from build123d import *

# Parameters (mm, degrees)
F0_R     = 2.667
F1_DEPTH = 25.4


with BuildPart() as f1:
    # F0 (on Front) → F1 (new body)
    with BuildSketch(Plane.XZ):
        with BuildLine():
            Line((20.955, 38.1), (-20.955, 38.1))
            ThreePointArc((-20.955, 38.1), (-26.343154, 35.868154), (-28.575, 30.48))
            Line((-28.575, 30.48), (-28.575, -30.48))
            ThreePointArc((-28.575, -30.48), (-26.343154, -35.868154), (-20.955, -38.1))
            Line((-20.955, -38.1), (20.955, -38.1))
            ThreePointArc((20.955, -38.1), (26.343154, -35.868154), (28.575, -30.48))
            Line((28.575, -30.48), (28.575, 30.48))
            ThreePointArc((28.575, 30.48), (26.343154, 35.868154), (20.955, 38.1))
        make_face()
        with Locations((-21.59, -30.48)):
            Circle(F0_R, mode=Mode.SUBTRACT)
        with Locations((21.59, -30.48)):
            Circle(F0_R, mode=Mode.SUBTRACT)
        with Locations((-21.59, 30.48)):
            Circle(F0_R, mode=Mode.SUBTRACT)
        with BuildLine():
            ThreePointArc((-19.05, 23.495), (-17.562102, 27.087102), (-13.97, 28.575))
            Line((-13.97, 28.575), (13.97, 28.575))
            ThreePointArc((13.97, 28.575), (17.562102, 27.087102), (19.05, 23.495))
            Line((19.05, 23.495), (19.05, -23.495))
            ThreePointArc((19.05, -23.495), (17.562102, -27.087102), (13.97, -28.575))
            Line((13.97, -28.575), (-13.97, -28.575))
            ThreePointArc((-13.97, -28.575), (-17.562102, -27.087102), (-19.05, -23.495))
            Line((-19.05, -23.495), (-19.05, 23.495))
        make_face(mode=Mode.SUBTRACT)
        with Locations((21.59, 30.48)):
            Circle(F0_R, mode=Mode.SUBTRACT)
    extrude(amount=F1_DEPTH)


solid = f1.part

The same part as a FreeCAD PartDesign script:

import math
import FreeCAD as App
import Part
import Sketcher
Q = App.Units.Quantity

doc = App.newDocument("Part")
body = doc.addObject("PartDesign::Body", "Body")

# Sketch on XZ plane
sketch1 = body.newObject("Sketcher::SketchObject", "Sketch")
sketch1.AttachmentSupport = (doc.getObject("XZ_Plane"), [""])
sketch1.MapMode = "FlatFace"
sketch1.addGeometry([
    Part.LineSegment(App.Vector(21, 38.1, 0), App.Vector(-21, 38.1, 0)),  # 0
    Part.ArcOfCircle(Part.Circle(App.Vector(-21, 30.5, 0), App.Vector(0, 0, 1), 7.6), math.radians(90), math.radians(180)),  # 1
    Part.LineSegment(App.Vector(-28.6, 30.5, 0), App.Vector(-28.6, -30.5, 0)),  # 2
    Part.ArcOfCircle(Part.Circle(App.Vector(-21, -30.5, 0), App.Vector(0, 0, 1), 7.6), math.radians(180), math.radians(270)),  # 3
    Part.LineSegment(App.Vector(-21, -38.1, 0), App.Vector(21, -38.1, 0)),  # 4
    Part.ArcOfCircle(Part.Circle(App.Vector(21, -30.5, 0), App.Vector(0, 0, 1), 7.6), math.radians(-90), math.radians(0)),  # 5
    Part.LineSegment(App.Vector(28.6, -30.5, 0), App.Vector(28.6, 30.5, 0)),  # 6
    Part.ArcOfCircle(Part.Circle(App.Vector(21, 30.5, 0), App.Vector(0, 0, 1), 7.6), math.radians(0), math.radians(90)),  # 7
    Part.Circle(App.Vector(-21.6, -30.5, 0), App.Vector(0, 0, 1), 2.7),  # 8
    Part.Circle(App.Vector(21.6, -30.5, 0), App.Vector(0, 0, 1), 2.7),  # 9
    Part.LineSegment(App.Vector(-19.1, -23.5, 0), App.Vector(-19.1, 23.5, 0)),  # 10
    Part.ArcOfCircle(Part.Circle(App.Vector(-14, 23.5, 0), App.Vector(0, 0, 1), 5.1), math.radians(90), math.radians(180)),  # 11
    Part.LineSegment(App.Vector(-14, 28.6, 0), App.Vector(14, 28.6, 0)),  # 12
    Part.ArcOfCircle(Part.Circle(App.Vector(14, 23.5, 0), App.Vector(0, 0, 1), 5.1), math.radians(0), math.radians(90)),  # 13
    Part.LineSegment(App.Vector(19.1, 23.5, 0), App.Vector(19.1, -23.5, 0)),  # 14
    Part.ArcOfCircle(Part.Circle(App.Vector(14, -23.5, 0), App.Vector(0, 0, 1), 5.1), math.radians(-90), math.radians(0)),  # 15
    Part.LineSegment(App.Vector(14, -28.6, 0), App.Vector(-14, -28.6, 0)),  # 16
    Part.ArcOfCircle(Part.Circle(App.Vector(-14, -23.5, 0), App.Vector(0, 0, 1), 5.1), math.radians(-180), math.radians(-90)),  # 17
    Part.Circle(App.Vector(-21.6, 30.5, 0), App.Vector(0, 0, 1), 2.7),  # 18
    Part.Circle(App.Vector(21.6, 30.5, 0), App.Vector(0, 0, 1), 2.7),  # 19
], False)
sketch1.addConstraint([
    Sketcher.Constraint("Tangent", 0, 2, 1, 1),
    Sketcher.Constraint("Tangent", 1, 2, 2, 1),
    Sketcher.Constraint("Tangent", 2, 2, 3, 1),
    Sketcher.Constraint("Tangent", 3, 2, 4, 1),
    Sketcher.Constraint("Tangent", 4, 2, 5, 1),
    Sketcher.Constraint("Tangent", 5, 2, 6, 1),
    Sketcher.Constraint("Tangent", 6, 2, 7, 1),
    Sketcher.Constraint("Tangent", 7, 2, 0, 1),
    Sketcher.Constraint("Tangent", 10, 2, 11, 2),
    Sketcher.Constraint("Tangent", 11, 1, 12, 1),
    Sketcher.Constraint("Tangent", 12, 2, 13, 2),
    Sketcher.Constraint("Tangent", 13, 1, 14, 1),
    Sketcher.Constraint("Tangent", 14, 2, 15, 2),
    Sketcher.Constraint("Tangent", 15, 1, 16, 1),
    Sketcher.Constraint("Tangent", 16, 2, 17, 2),
    Sketcher.Constraint("Tangent", 17, 1, 10, 1),
    Sketcher.Constraint("Horizontal", 0),
    Sketcher.Constraint("Vertical", 2),
    Sketcher.Constraint("Horizontal", 4),
    Sketcher.Constraint("Vertical", 6),
    Sketcher.Constraint("Vertical", 10),
    Sketcher.Constraint("Horizontal", 12),
    Sketcher.Constraint("Vertical", 14),
    Sketcher.Constraint("Horizontal", 16),
    Sketcher.Constraint("Equal", 1, 3),
    Sketcher.Constraint("Equal", 3, 5),
    Sketcher.Constraint("Equal", 5, 7),
    Sketcher.Constraint("Equal", 8, 9),
    Sketcher.Constraint("Equal", 11, 13),
    Sketcher.Constraint("Equal", 13, 15),
    Sketcher.Constraint("Equal", 15, 17),
    Sketcher.Constraint("Equal", 9, 18),
    Sketcher.Constraint("Equal", 18, 19),
    Sketcher.Constraint("Symmetric", 1, 3, 5, 3, -1, 1),
    Sketcher.Constraint("Symmetric", 11, 3, 15, 3, -1, 1),
    Sketcher.Constraint("Symmetric", 9, 3, 18, 3, -1, 1),
    Sketcher.Constraint("Symmetric", 8, 3, 19, 3, -1, 1),
    Sketcher.Constraint("Symmetric", 8, 3, 9, 3, -2),
    Sketcher.Constraint("Horizontal", 5, 3, 8, 3),
    Sketcher.Constraint("Radius", 1, Q("0.3 in")),
    Sketcher.Constraint("Radius", 11, Q("0.2000001 in")),
    Sketcher.Constraint("Diameter", 8, Q("0.21 in")),
    Sketcher.Constraint("DistanceX", 12, 1, 12, 2, Q("1.1 in")),
    Sketcher.Constraint("DistanceY", 2, 2, 2, 1, Q("2.4 in")),
    Sketcher.Constraint("DistanceX", 0, 2, 0, 1, Q("1.65 in")),
    Sketcher.Constraint("DistanceY", 10, 1, 10, 2, Q("1.85 in")),
    Sketcher.Constraint("DistanceX", 8, 3, 9, 3, Q("1.7 in")),
])
pad1 = body.newObject("PartDesign::Pad", "Pad")
pad1.Profile = sketch1
pad1.Length = Q("1 in")

doc.recompute()
